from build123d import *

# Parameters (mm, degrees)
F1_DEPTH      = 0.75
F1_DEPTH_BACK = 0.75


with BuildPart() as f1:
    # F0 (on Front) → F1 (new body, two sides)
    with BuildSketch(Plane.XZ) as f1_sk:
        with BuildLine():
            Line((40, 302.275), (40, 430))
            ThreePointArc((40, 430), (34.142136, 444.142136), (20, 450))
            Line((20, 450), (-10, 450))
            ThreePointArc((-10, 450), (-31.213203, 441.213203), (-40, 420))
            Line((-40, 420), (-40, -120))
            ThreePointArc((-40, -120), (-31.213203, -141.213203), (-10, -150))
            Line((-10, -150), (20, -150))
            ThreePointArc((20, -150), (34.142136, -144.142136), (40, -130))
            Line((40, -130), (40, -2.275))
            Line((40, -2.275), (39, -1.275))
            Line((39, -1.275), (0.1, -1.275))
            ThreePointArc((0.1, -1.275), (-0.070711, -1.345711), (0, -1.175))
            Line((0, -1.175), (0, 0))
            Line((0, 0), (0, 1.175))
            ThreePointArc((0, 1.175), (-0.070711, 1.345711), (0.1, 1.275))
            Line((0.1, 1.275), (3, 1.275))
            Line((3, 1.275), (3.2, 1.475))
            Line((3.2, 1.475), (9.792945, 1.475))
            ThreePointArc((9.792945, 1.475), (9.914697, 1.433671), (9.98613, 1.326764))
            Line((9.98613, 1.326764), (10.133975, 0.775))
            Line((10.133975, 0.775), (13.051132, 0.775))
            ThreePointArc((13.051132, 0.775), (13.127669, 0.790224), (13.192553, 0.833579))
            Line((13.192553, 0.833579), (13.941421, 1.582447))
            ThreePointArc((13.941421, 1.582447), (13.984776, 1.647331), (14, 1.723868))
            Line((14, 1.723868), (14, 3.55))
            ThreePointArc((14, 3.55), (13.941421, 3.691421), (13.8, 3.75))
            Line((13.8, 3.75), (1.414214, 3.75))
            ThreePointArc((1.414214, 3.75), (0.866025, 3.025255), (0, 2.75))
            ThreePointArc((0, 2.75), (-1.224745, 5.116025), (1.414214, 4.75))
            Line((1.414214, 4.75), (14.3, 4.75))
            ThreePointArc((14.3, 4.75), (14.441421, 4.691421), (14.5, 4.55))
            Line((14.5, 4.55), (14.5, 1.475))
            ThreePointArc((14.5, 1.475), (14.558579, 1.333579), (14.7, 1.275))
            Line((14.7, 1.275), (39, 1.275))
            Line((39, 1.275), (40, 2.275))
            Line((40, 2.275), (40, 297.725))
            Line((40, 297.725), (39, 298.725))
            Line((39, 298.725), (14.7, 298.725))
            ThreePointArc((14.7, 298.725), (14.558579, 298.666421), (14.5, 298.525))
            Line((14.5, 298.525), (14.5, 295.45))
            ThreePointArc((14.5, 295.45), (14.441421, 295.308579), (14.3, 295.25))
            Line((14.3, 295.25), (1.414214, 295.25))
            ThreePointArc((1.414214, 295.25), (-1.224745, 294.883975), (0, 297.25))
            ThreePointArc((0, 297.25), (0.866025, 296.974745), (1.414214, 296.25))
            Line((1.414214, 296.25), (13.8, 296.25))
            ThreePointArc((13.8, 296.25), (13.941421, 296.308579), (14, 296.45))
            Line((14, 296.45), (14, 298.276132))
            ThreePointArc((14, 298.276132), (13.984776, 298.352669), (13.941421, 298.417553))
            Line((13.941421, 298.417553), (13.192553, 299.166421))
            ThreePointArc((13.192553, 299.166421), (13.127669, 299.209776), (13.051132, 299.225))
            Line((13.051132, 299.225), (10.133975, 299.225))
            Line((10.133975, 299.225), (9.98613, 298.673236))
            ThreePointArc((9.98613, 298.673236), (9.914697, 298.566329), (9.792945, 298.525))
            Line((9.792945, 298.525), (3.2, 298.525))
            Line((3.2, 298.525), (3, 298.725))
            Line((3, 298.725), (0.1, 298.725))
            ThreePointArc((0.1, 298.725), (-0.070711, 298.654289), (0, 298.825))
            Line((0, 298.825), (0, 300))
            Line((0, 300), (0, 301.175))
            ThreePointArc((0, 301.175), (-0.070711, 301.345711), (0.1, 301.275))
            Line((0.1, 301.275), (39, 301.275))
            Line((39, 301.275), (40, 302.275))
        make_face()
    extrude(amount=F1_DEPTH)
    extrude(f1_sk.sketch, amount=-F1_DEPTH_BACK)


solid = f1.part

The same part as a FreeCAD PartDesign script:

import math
import FreeCAD as App
import Part
import Sketcher

V = App.Vector

doc = App.newDocument("Part")
params = doc.addObject("Spreadsheet::Sheet", "Params")
for row, (alias, value) in enumerate([
    ("sketch1_radius", "19.999999 mm"),
    ("sketch1_radius2", "30.000001 mm"),
    ("sketch1_radius3", "0.1 mm"),
    ("sketch1_radius4", "0.199999 mm"),
    ("sketch1_radius5", "1.500002 mm"),
    ("pad1_length", "0.75 mm"),
    ("pad1_length2", "0.75 mm"),
], start=1):
    params.set(f"A{row}", alias)
    params.set(f"B{row}", "=" + value)
    params.setAlias(f"B{row}", alias)

body = doc.addObject("PartDesign::Body", "Body")

sketch1 = body.newObject("Sketcher::SketchObject", "Sketch")
sketch1.AttachmentSupport = (doc.getObject("XZ_Plane"), [""])
sketch1.MapMode = "FlatFace"
sketch1.addGeometry([
    Part.LineSegment(V(40, 302.275, 0), V(40, 430, 0)),
    Part.ArcOfCircle(Part.Circle(V(20.000001, 430.000001, 0), V(0, 0, 1), 19.999999), math.radians(-0.000004), math.radians(90.000004)),
    Part.LineSegment(V(20, 450, 0), V(-10, 450, 0)),
    Part.ArcOfCircle(Part.Circle(V(-9.999999, 419.999999, 0), V(0, 0, 1), 30.000001), math.radians(90.000003), math.radians(179.999997)),
    Part.LineSegment(V(-40, 420, 0), V(-40, -120, 0)),
    Part.ArcOfCircle(Part.Circle(V(-9.999999, -119.999999, 0), V(0, 0, 1), 30.000001), math.radians(-179.999997), math.radians(-90.000003)),
    Part.LineSegment(V(-10, -150, 0), V(20, -150, 0)),
    Part.ArcOfCircle(Part.Circle(V(20.000001, -130.000001, 0), V(0, 0, 1), 19.999999), math.radians(-90.000004), math.radians(0.000004)),
    Part.LineSegment(V(40, -130, 0), V(40, -2.275, 0)),
    Part.LineSegment(V(40, -2.275, 0), V(39, -1.275, 0)),
    Part.LineSegment(V(39, -1.275, 0), V(0.1, -1.275, 0)),
    Part.ArcOfCircle(Part.Circle(V(0, -1.275, 0), V(0, 0, 1), 0.1), math.radians(89.999892), math.radians(360.000108)),
    Part.LineSegment(V(0, -1.175, 0), V(0, 1.175, 0)),
    Part.ArcOfCircle(Part.Circle(V(0, 1.275, 0), V(0, 0, 1), 0.1), math.radians(-0.000108), math.radians(270.000108)),
    Part.LineSegment(V(0.1, 1.275, 0), V(3, 1.275, 0)),
    Part.LineSegment(V(3, 1.275, 0), V(3.2, 1.475, 0)),
    Part.LineSegment(V(3.2, 1.475, 0), V(9.792945, 1.475, 0)),
    Part.ArcOfCircle(Part.Circle(V(9.792945, 1.275001, 0), V(0, 0, 1), 0.199999), math.radians(14.999923), math.radians(90.000101)),
    Part.LineSegment(V(9.98613, 1.326764, 0), V(10.133975, 0.775, 0)),
    Part.LineSegment(V(10.133975, 0.775, 0), V(13.051132, 0.775, 0)),
    Part.ArcOfCircle(Part.Circle(V(13.051134, 0.974994, 0), V(0, 0, 1), 0.199994), math.radians(-90.000486), math.radians(-44.999166)),
    Part.LineSegment(V(13.192553, 0.833579, 0), V(13.941421, 1.582447, 0)),
    Part.ArcOfCircle(Part.Circle(V(13.800006, 1.723866, 0), V(0, 0, 1), 0.199994), math.radians(-45.000834), math.radians(0.000486)),
    Part.LineSegment(V(14, 1.723868, 0), V(14, 3.55, 0)),
    Part.ArcOfCircle(Part.Circle(V(13.799999, 3.549999, 0), V(0, 0, 1), 0.200001), math.radians(0.000348), math.radians(89.999652)),
    Part.LineSegment(V(13.8, 3.75, 0), V(1.414214, 3.75, 0)),
    Part.ArcOfCircle(Part.Circle(V(-0.000001, 4.250002, 0), V(0, 0, 1), 1.500002), math.radians(-89.999971), math.radians(-19.471266)),
    Part.ArcOfCircle(Part.Circle(V(0, 4.25, 0), V(0, 0, 1), 1.5), math.radians(19.471216), math.radians(269.999988)),
    Part.LineSegment(V(1.414214, 4.75, 0), V(14.3, 4.75, 0)),
    Part.ArcOfCircle(Part.Circle(V(14.299999, 4.549999, 0), V(0, 0, 1), 0.200001), math.radians(0.000348), math.radians(89.999652)),
    Part.LineSegment(V(14.5, 4.55, 0), V(14.5, 1.475, 0)),
    Part.ArcOfCircle(Part.Circle(V(14.700001, 1.475001, 0), V(0, 0, 1), 0.200001), math.radians(-179.999652), math.radians(-90.000348)),
    Part.LineSegment(V(14.7, 1.275, 0), V(39, 1.275, 0)),
    Part.LineSegment(V(39, 1.275, 0), V(40, 2.275, 0)),
    Part.LineSegment(V(40, 2.275, 0), V(40, 297.725, 0)),
    Part.LineSegment(V(40, 297.725, 0), V(39, 298.725, 0)),
    Part.LineSegment(V(39, 298.725, 0), V(14.7, 298.725, 0)),
    Part.ArcOfCircle(Part.Circle(V(14.700001, 298.524999, 0), V(0, 0, 1), 0.200001), math.radians(90.000348), math.radians(179.999652)),
    Part.LineSegment(V(14.5, 298.525, 0), V(14.5, 295.45, 0)),
    Part.ArcOfCircle(Part.Circle(V(14.299999, 295.450001, 0), V(0, 0, 1), 0.200001), math.radians(-89.999652), math.radians(-0.000348)),
    Part.LineSegment(V(14.3, 295.25, 0), V(1.414214, 295.25, 0)),
    Part.ArcOfCircle(Part.Circle(V(0, 295.75, 0), V(0, 0, 1), 1.5), math.radians(90.000012), math.radians(340.528784)),
    Part.ArcOfCircle(Part.Circle(V(-0.000001, 295.749998, 0), V(0, 0, 1), 1.500002), math.radians(19.471266), math.radians(89.999971)),
    Part.LineSegment(V(1.414214, 296.25, 0), V(13.8, 296.25, 0)),
    Part.ArcOfCircle(Part.Circle(V(13.799999, 296.450001, 0), V(0, 0, 1), 0.200001), math.radians(-89.999652), math.radians(-0.000348)),
    Part.LineSegment(V(14, 296.45, 0), V(14, 298.276132, 0)),
    Part.ArcOfCircle(Part.Circle(V(13.800006, 298.276134, 0), V(0, 0, 1), 0.199994), math.radians(-0.000486), math.radians(45.000834)),
    Part.LineSegment(V(13.941421, 298.417553, 0), V(13.192553, 299.166421, 0)),
    Part.ArcOfCircle(Part.Circle(V(13.051134, 299.025006, 0), V(0, 0, 1), 0.199994), math.radians(44.999166), math.radians(90.000486)),
    Part.LineSegment(V(13.051132, 299.225, 0), V(10.133975, 299.225, 0)),
    Part.LineSegment(V(10.133975, 299.225, 0), V(9.98613, 298.673236, 0)),
    Part.ArcOfCircle(Part.Circle(V(9.792945, 298.724999, 0), V(0, 0, 1), 0.199999), math.radians(-90.000101), math.radians(-14.999923)),
    Part.LineSegment(V(9.792945, 298.525, 0), V(3.2, 298.525, 0)),
    Part.LineSegment(V(3.2, 298.525, 0), V(3, 298.725, 0)),
    Part.LineSegment(V(3, 298.725, 0), V(0.1, 298.725, 0)),
    Part.ArcOfCircle(Part.Circle(V(0, 298.725, 0), V(0, 0, 1), 0.1), math.radians(89.999892), math.radians(360.000108)),
    Part.LineSegment(V(0, 298.825, 0), V(0, 301.175, 0)),
    Part.ArcOfCircle(Part.Circle(V(0, 301.275, 0), V(0, 0, 1), 0.1), math.radians(-0.000108), math.radians(270.000108)),
    Part.LineSegment(V(0.1, 301.275, 0), V(39, 301.275, 0)),
    Part.LineSegment(V(39, 301.275, 0), V(40, 302.275, 0)),
], False)
sketch1.addConstraint([
    Sketcher.Constraint("Tangent", 0, 2, 1, 1),
    Sketcher.Constraint("Tangent", 1, 2, 2, 1),
    Sketcher.Constraint("Tangent", 2, 2, 3, 1),
    Sketcher.Constraint("Tangent", 3, 2, 4, 1),
    Sketcher.Constraint("Tangent", 4, 2, 5, 1),
    Sketcher.Constraint("Tangent", 5, 2, 6, 1),
    Sketcher.Constraint("Tangent", 6, 2, 7, 1),
    Sketcher.Constraint("Tangent", 7, 2, 8, 1),
    Sketcher.Constraint("Coincident", 8, 2, 9, 1),
    Sketcher.Constraint("Coincident", 9, 2, 10, 1),
    Sketcher.Constraint("Coincident", 10, 2, 11, 2),
    Sketcher.Constraint("Coincident", 11, 1, 12, 1),
    Sketcher.Constraint("Coincident", 12, 2, 13, 2),
    Sketcher.Constraint("Coincident", 13, 1, 14, 1),
    Sketcher.Constraint("Coincident", 14, 2, 15, 1),
    Sketcher.Constraint("Coincident", 15, 2, 16, 1),
    Sketcher.Constraint("Tangent", 16, 2, 17, 2),
    Sketcher.Constraint("Tangent", 17, 1, 18, 1),
    Sketcher.Constraint("Coincident", 18, 2, 19, 1),
    Sketcher.Constraint("Coincident", 19, 2, 20, 1),
    Sketcher.Constraint("Coincident", 20, 2, 21, 1),
    Sketcher.Constraint("Coincident", 21, 2, 22, 1),
    Sketcher.Constraint("Coincident", 22, 2, 23, 1),
    Sketcher.Constraint("Coincident", 23, 2, 24, 1),
    Sketcher.Constraint("Coincident", 24, 2, 25, 1),
    Sketcher.Constraint("Coincident", 25, 2, 26, 2),
    Sketcher.Constraint("Tangent", 26, 1, 27, 2),
    Sketcher.Constraint("Coincident", 27, 1, 28, 1),
    Sketcher.Constraint("Coincident", 28, 2, 29, 2),
    Sketcher.Constraint("Coincident", 29, 1, 30, 1),
    Sketcher.Constraint("Coincident", 30, 2, 31, 1),
    Sketcher.Constraint("Coincident", 31, 2, 32, 1),
    Sketcher.Constraint("Coincident", 32, 2, 33, 1),
    Sketcher.Constraint("Coincident", 33, 2, 34, 1),
    Sketcher.Constraint("Coincident", 34, 2, 35, 1),
    Sketcher.Constraint("Coincident", 35, 2, 36, 1),
    Sketcher.Constraint("Coincident", 36, 2, 37, 1),
    Sketcher.Constraint("Coincident", 37, 2, 38, 1),
    Sketcher.Constraint("Coincident", 38, 2, 39, 2),
    Sketcher.Constraint("Coincident", 39, 1, 40, 1),
    Sketcher.Constraint("Coincident", 40, 2, 41, 2),
    Sketcher.Constraint("Tangent", 41, 1, 42, 2),
    Sketcher.Constraint("Coincident", 42, 1, 43, 1),
    Sketcher.Constraint("Coincident", 43, 2, 44, 1),
    Sketcher.Constraint("Coincident", 44, 2, 45, 1),
    Sketcher.Constraint("Coincident", 45, 2, 46, 1),
    Sketcher.Constraint("Coincident", 46, 2, 47, 1),
    Sketcher.Constraint("Coincident", 47, 2, 48, 1),
    Sketcher.Constraint("Coincident", 48, 2, 49, 1),
    Sketcher.Constraint("Coincident", 49, 2, 50, 1),
    Sketcher.Constraint("Tangent", 50, 2, 51, 2),
    Sketcher.Constraint("Tangent", 51, 1, 52, 1),
    Sketcher.Constraint("Coincident", 52, 2, 53, 1),
    Sketcher.Constraint("Coincident", 53, 2, 54, 1),
    Sketcher.Constraint("Coincident", 54, 2, 55, 2),
    Sketcher.Constraint("Coincident", 55, 1, 56, 1),
    Sketcher.Constraint("Coincident", 56, 2, 57, 2),
    Sketcher.Constraint("Coincident", 57, 1, 58, 1),
    Sketcher.Constraint("Coincident", 58, 2, 59, 1),
    Sketcher.Constraint("Coincident", 59, 2, 0, 1),
    Sketcher.Constraint("Vertical", 0),
    Sketcher.Constraint("Horizontal", 2),
    Sketcher.Constraint("Vertical", 4),
    Sketcher.Constraint("Horizontal", 6),
    Sketcher.Constraint("Vertical", 8),
    Sketcher.Constraint("Horizontal", 10),
    Sketcher.Constraint("Vertical", 12),
    Sketcher.Constraint("Horizontal", 14),
    Sketcher.Constraint("Horizontal", 16),
    Sketcher.Constraint("Horizontal", 19),
    Sketcher.Constraint("Vertical", 23),
    Sketcher.Constraint("Horizontal", 25),
    Sketcher.Constraint("Horizontal", 28),
    Sketcher.Constraint("Vertical", 30),
    Sketcher.Constraint("Horizontal", 32),
    Sketcher.Constraint("Vertical", 34),
    Sketcher.Constraint("Horizontal", 36),
    Sketcher.Constraint("Vertical", 38),
    Sketcher.Constraint("Horizontal", 40),
    Sketcher.Constraint("Horizontal", 43),
    Sketcher.Constraint("Vertical", 45),
    Sketcher.Constraint("Horizontal", 49),
    Sketcher.Constraint("Horizontal", 52),
    Sketcher.Constraint("Horizontal", 54),
    Sketcher.Constraint("Vertical", 56),
    Sketcher.Constraint("Horizontal", 58),
    Sketcher.Constraint("Equal", 3, 5),
    Sketcher.Constraint("Equal", 1, 7),
    Sketcher.Constraint("Equal", 11, 13),
    Sketcher.Constraint("Equal", 20, 22),
    Sketcher.Constraint("Equal", 17, 24),
    Sketcher.Constraint("Equal", 26, 27),
    Sketcher.Constraint("Equal", 24, 29),
    Sketcher.Constraint("Equal", 29, 31),
    Sketcher.Constraint("Equal", 31, 37),
    Sketcher.Constraint("Equal", 37, 39),
    Sketcher.Constraint("Equal", 27, 41),
    Sketcher.Constraint("Equal", 41, 42),
    Sketcher.Constraint("Equal", 39, 44),
    Sketcher.Constraint("Equal", 22, 46),
    Sketcher.Constraint("Equal", 46, 48),
    Sketcher.Constraint("Equal", 44, 51),
    Sketcher.Constraint("Equal", 13, 55),
    Sketcher.Constraint("Equal", 55, 57),
    Sketcher.Constraint("Symmetric", 11, 3, 13, 3, -1, 1),
    Sketcher.Constraint("Symmetric", 10, 2, 13, 1, -1),
    Sketcher.Constraint("Symmetric", 9, 2, 32, 2, -1),
    Sketcher.Constraint("Symmetric", 8, 2, 33, 2, -1),
    Sketcher.Constraint("PointOnObject", 26, 3, -2),
    Sketcher.Constraint("PointOnObject", 41, 3, -2),
    Sketcher.Constraint("PointOnObject", 55, 3, -2),
    Sketcher.Constraint("PointOnObject", 57, 3, -2),
    Sketcher.Constraint("PointOnObject", 11, 1, -2),
    Sketcher.Constraint("PointOnObject", 26, 1, -2),
    Sketcher.Constraint("PointOnObject", 41, 1, -2),
    Sketcher.Constraint("PointOnObject", 55, 1, -2),
    Sketcher.Constraint("Perpendicular", 9, 15),
    Sketcher.Constraint("Parallel", 15, 21),
    Sketcher.Constraint("Parallel", 21, 33),
    Sketcher.Constraint("Perpendicular", 33, 35),
    Sketcher.Constraint("Parallel", 35, 47),
    Sketcher.Constraint("Parallel", 47, 53),
    Sketcher.Constraint("Perpendicular", 53, 59),
    Sketcher.Constraint("Horizontal", 13, 3, 17, 3),
    Sketcher.Constraint("Horizontal", 51, 3, 55, 3),
    Sketcher.Constraint("Horizontal", 11, 3, 9, 2),
    Sketcher.Constraint("Horizontal", 24, 3, 23, 2),
    Sketcher.Constraint("Horizontal", 16, 2, 30, 2),
    Sketcher.Constraint("Horizontal", 55, 3, 35, 2),
    Sketcher.Constraint("Horizontal", 39, 3, 38, 2),
    Sketcher.Constraint("Horizontal", 46, 3, 45, 2),
    Sketcher.Constraint("Horizontal", 37, 2, 51, 1),
    Sketcher.Constraint("Horizontal", 36, 2, 53, 2),
    Sketcher.Constraint("Vertical", 1, 3, 7, 3),
    Sketcher.Constraint("Vertical", 31, 3, 37, 3),
    Sketcher.Constraint("Vertical", 24, 3, 44, 3),
    Sketcher.Constraint("Vertical", 20, 3, 48, 3),
    Sketcher.Constraint("Vertical", 17, 3, 51, 3),
    Sketcher.Constraint("Vertical", 48, 3, 19, 2),
    Sketcher.Constraint("Vertical", 44, 3, 24, 2),
    Sketcher.Constraint("Vertical", 25, 2, 27, 1),
    Sketcher.Constraint("Vertical", 39, 3, 28, 2),
    Sketcher.Constraint("Vertical", 37, 3, 31, 2),
    Sketcher.Constraint("Vertical", 32, 2, 35, 2),
    Sketcher.Constraint("Vertical", 31, 2, 36, 2),
    Sketcher.Constraint("Vertical", 28, 2, 39, 1),
    Sketcher.Constraint("Vertical", 27, 1, 40, 2),
    Sketcher.Constraint("Vertical", 40, 2, 42, 1),
    Sketcher.Constraint("Vertical", 24, 2, 43, 2),
    Sketcher.Constraint("Vertical", 21, 2, 46, 2),
    Sketcher.Constraint("Vertical", 20, 2, 47, 2),
    Sketcher.Constraint("Vertical", 19, 2, 48, 2),
    Sketcher.Constraint("Vertical", 18, 2, 49, 2),
    Sketcher.Constraint("Vertical", 17, 1, 50, 2),
    Sketcher.Constraint("Vertical", 15, 2, 52, 2),
    Sketcher.Constraint("Vertical", 35, 2, 58, 2),
    Sketcher.Constraint("Equal", 0, 8),
    Sketcher.Constraint("Equal", 30, 38),
    Sketcher.Constraint("Equal", 23, 45),
    Sketcher.Constraint("Equal", 12, 56),
    Sketcher.Constraint("Radius", 1, 19.999999),
    Sketcher.Constraint("Radius", 3, 30.000001),
    Sketcher.Constraint("Radius", 11, 0.1),
    Sketcher.Constraint("Radius", 17, 0.199999),
    Sketcher.Constraint("Radius", 26, 1.500002),
    Sketcher.Constraint("DistanceX", 2, 2, 2, 1, 30.0),
    Sketcher.Constraint("DistanceY", 4, 2, 4, 1, 540.0),
    Sketcher.Constraint("DistanceX", 10, 2, 10, 1, 38.9),
    Sketcher.Constraint("DistanceX", 14, 1, 14, 2, 2.9),
    Sketcher.Constraint("DistanceX", 32, 1, 32, 2, 24.3),
    Sketcher.Constraint("DistanceX", -1, 1, 1, 3, 20.000001),
    Sketcher.Constraint("DistanceY", -1, 1, 1, 3, 430.000001),
    Sketcher.Constraint("DistanceX", -1, 1, 22, 2, 14.0),
    Sketcher.Constraint("DistanceY", 12, 1, 12, 2, 2.35),
    Sketcher.Constraint("DistanceY", 34, 1, 34, 2, 295.45),
    Sketcher.Constraint("DistanceY", 30, 2, 30, 1, 3.075),
    Sketcher.Constraint("DistanceY", -1, 1, 24, 3, 3.549999),
    Sketcher.Constraint("DistanceY", -1, 1, 26, 3, 4.250002),
    Sketcher.Constraint("DistanceY", -1, 1, 44, 2, 296.45),
    Sketcher.Constraint("DistanceY", -1, 1, 18, 2, 0.775),
    Sketcher.Constraint("Radius", 20, 0.199994),
    Sketcher.Constraint("DistanceY", 23, 1, 23, 2, 1.826132),
    Sketcher.Constraint("Distance", 18, 0.571228),
    Sketcher.Constraint("Distance", 21, 1.059059),
    Sketcher.Constraint("DistanceX", 16, 1, 16, 2, 6.592945),
    Sketcher.Constraint("DistanceY", -1, 1, 20, 2, 0.833579),
])
sketch1.setExpression("Constraints[160]", "Params.sketch1_radius")
sketch1.setExpression("Constraints[161]", "Params.sketch1_radius2")
sketch1.setExpression("Constraints[162]", "Params.sketch1_radius3")
sketch1.setExpression("Constraints[163]", "Params.sketch1_radius4")
sketch1.setExpression("Constraints[164]", "Params.sketch1_radius5")
pad1 = body.newObject("PartDesign::Pad", "Pad")
pad1.Profile = sketch1
pad1.Type = "TwoLengths"
pad1.setExpression("Length", "Params.pad1_length")
pad1.setExpression("Length2", "Params.pad1_length2")

doc.recompute()
